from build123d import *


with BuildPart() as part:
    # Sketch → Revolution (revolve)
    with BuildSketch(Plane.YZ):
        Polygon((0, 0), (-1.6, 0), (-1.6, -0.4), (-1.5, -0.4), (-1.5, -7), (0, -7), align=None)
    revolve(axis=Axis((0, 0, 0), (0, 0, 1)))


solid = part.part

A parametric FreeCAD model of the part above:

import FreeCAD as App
import Part
import Sketcher


def add_polygon(sketch, points):
    """Adds a closed chain of lines whose ends are joined by coincident constraints."""
    first, n = sketch.GeometryCount, len(points)
    for a, b in zip(points, points[1:] + points[:1]):
        sketch.addGeometry(Part.LineSegment(App.Vector(*a, 0), App.Vector(*b, 0)), False)
    for i in range(n):
        sketch.addConstraint(Sketcher.Constraint("Coincident", first + i, 2, first + (i + 1) % n, 1))

doc = App.newDocument("Part")
body = doc.addObject("PartDesign::Body", "Body")

# Sketch on YZ plane
sketch1 = doc.addObject("Sketcher::SketchObject", "Sketch")
body.addObject(sketch1)
sketch1.AttachmentSupport = (doc.YZ_Plane, [""])
sketch1.MapMode = "FlatFace"
add_polygon(sketch1, [(0, 0), (-1.6, 0), (-1.6, -0.4), (-1.5, -0.4), (-1.5, -7), (0, -7)])  # lines 0-5
sketch1.addConstraint([
    Sketcher.Constraint("Horizontal", 0),
    Sketcher.Constraint("Vertical", 1),
    Sketcher.Constraint("Horizontal", 2),
    Sketcher.Constraint("Vertical", 3),
    Sketcher.Constraint("Horizontal", 4),
    Sketcher.Constraint("Vertical", 5),
    Sketcher.Constraint("Coincident", 5, 2, -1, 1),
    Sketcher.Constraint("DistanceY", 5, 1, 5, 2, 7.0),
    Sketcher.Constraint("DistanceX", 0, 2, 0, 1, 1.6),
    Sketcher.Constraint("DistanceX", 2, 1, 2, 2, 0.1),
    Sketcher.Constraint("DistanceY", 1, 2, 1, 1, 0.4),
])
revolution = doc.addObject("PartDesign::Revolution", "Revolution")
body.addObject(revolution)
revolution.Profile = sketch1
revolution.ReferenceAxis = (sketch1, ["V_Axis"])
revolution.Angle = 360

doc.recompute()
